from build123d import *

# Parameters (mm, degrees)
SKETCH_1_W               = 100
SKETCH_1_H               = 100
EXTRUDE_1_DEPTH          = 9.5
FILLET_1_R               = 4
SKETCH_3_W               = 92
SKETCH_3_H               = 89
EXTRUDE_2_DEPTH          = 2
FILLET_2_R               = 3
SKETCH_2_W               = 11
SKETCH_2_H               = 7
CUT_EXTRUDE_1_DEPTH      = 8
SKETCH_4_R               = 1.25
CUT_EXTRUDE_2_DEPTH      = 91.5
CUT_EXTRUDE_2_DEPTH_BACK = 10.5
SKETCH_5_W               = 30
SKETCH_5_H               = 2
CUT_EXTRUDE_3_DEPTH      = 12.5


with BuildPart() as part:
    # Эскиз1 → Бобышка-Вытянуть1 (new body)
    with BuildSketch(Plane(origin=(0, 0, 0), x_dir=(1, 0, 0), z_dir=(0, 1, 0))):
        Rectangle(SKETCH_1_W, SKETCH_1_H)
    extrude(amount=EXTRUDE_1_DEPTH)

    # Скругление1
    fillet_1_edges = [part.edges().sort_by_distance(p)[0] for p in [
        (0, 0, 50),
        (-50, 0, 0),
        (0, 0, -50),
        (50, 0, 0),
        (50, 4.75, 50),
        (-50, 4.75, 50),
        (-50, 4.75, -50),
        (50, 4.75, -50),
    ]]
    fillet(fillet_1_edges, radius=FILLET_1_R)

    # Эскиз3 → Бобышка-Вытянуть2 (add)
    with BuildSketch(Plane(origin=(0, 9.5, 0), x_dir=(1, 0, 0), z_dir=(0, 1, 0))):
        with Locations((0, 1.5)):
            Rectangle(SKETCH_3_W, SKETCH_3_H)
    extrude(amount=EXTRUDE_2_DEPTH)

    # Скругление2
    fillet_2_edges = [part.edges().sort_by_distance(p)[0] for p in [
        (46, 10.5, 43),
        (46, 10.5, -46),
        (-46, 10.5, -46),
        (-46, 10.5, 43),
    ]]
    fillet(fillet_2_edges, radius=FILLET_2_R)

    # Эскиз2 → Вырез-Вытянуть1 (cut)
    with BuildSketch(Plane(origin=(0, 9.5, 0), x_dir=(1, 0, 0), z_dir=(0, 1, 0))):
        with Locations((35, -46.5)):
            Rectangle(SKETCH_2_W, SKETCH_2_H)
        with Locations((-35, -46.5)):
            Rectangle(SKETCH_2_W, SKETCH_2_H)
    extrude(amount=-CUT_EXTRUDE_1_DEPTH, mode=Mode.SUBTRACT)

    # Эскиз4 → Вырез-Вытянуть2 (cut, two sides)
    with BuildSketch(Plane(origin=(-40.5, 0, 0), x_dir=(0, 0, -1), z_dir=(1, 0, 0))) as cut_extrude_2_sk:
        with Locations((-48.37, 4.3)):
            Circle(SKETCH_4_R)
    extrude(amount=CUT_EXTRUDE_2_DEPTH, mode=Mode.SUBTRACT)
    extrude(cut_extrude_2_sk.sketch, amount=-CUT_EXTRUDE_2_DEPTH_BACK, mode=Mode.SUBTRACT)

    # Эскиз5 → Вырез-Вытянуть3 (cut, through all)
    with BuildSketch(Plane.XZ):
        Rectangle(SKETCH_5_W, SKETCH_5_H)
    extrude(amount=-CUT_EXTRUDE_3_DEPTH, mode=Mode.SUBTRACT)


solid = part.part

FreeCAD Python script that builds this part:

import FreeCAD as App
import Part
import Sketcher
Q = App.Units.Quantity


def edges_at(feature, points):
    """Names of the edges that pass closest to the given points."""
    edges = feature.Shape.Edges
    near = lambda p: min(range(len(edges)), key=lambda i: edges[i].distToShape(Part.Vertex(*p))[0])
    return sorted({f"Edge{near(p) + 1}" for p in points})

doc = App.newDocument("Part")
params = doc.addObject("Spreadsheet::Sheet", "Params")
for row, (alias, value) in enumerate([
    ("sketch1_width", "100 mm"),
    ("pad1_length", "9.5 mm"),
    ("fillet_radius", "4 mm"),
    ("sketch2_width", "92 mm"),
    ("sketch2_height", "89 mm"),
    ("pad2_length", "2 mm"),
    ("fillet2_radius", "3 mm"),
    ("sketch3_width", "11 mm"),
    ("sketch3_height", "7 mm"),
    ("pocket1_length", "8 mm"),
    ("sketch4_diameter", "2.5 mm"),
    ("sketch5_width", "30 mm"),
    ("sketch5_height", "2 mm"),
], start=1):
    params.set(f"A{row}", alias)
    params.set(f"B{row}", "=" + value)
    params.setAlias(f"B{row}", alias)

body = doc.addObject("PartDesign::Body", "Body")

# Sketch on XZ plane
sketch1 = body.newObject("Sketcher::SketchObject", "Sketch")
sketch1.AttachmentSupport = (doc.getObject("XZ_Plane"), [""])
sketch1.MapMode = "FlatFace"
sketch1.addGeometry([
    Part.LineSegment(App.Vector(-50, -50, 0), App.Vector(-50, 50, 0)),
    Part.LineSegment(App.Vector(-50, 50, 0), App.Vector(50, 50, 0)),
    Part.LineSegment(App.Vector(50, 50, 0), App.Vector(50, -50, 0)),
    Part.LineSegment(App.Vector(50, -50, 0), App.Vector(-50, -50, 0)),
], False)
sketch1.addConstraint([
    Sketcher.Constraint("Coincident", 0, 2, 1, 1),
    Sketcher.Constraint("Coincident", 1, 2, 2, 1),
    Sketcher.Constraint("Coincident", 2, 2, 3, 1),
    Sketcher.Constraint("Coincident", 3, 2, 0, 1),
    Sketcher.Constraint("Vertical", 0),
    Sketcher.Constraint("Horizontal", 1),
    Sketcher.Constraint("Vertical", 2),
    Sketcher.Constraint("Horizontal", 3),
    Sketcher.Constraint("Symmetric", 0, 2, 2, 2, -1, 1),
    Sketcher.Constraint("Equal", 3, 0),
    Sketcher.Constraint("DistanceX", 1, 1, 1, 2, Q("100 mm")),
])
sketch1.setExpression("Constraints[10]", "Params.sketch1_width")
pad1 = body.newObject("PartDesign::Pad", "Pad")
pad1.Profile = sketch1
pad1.setExpression("Length", "Params.pad1_length")
pad1.Reversed = True
doc.recompute()

fillet = body.newObject("PartDesign::Fillet", "Fillet")
fillet.Base = (pad1, edges_at(pad1, [
    (0, 0, 50),
    (-50, 0, 0),
    (0, 0, -50),
    (50, 0, 0),
    (50, 4.75, 50),
    (-50, 4.75, 50),
    (-50, 4.75, -50),
    (50, 4.75, -50),
]))
fillet.setExpression("Radius", "Params.fillet_radius")

# Sketch on XZ plane
sketch2 = body.newObject("Sketcher::SketchObject", "Sketch001")
sketch2.AttachmentSupport = (doc.getObject("XZ_Plane"), [""])
sketch2.MapMode = "FlatFace"
sketch2.AttachmentOffset = App.Placement(App.Vector(0, 0, -9.5), App.Rotation())
sketch2.addGeometry([
    Part.LineSegment(App.Vector(-46, -46, 0), App.Vector(-46, 43, 0)),
    Part.LineSegment(App.Vector(-46, 43, 0), App.Vector(46, 43, 0)),
    Part.LineSegment(App.Vector(46, 43, 0), App.Vector(46, -46, 0)),
    Part.LineSegment(App.Vector(46, -46, 0), App.Vector(-46, -46, 0)),
], False)
sketch2.addConstraint([
    Sketcher.Constraint("Coincident", 0, 2, 1, 1),
    Sketcher.Constraint("Coincident", 1, 2, 2, 1),
    Sketcher.Constraint("Coincident", 2, 2, 3, 1),
    Sketcher.Constraint("Coincident", 3, 2, 0, 1),
    Sketcher.Constraint("Vertical", 0),
    Sketcher.Constraint("Horizontal", 1),
    Sketcher.Constraint("Vertical", 2),
    Sketcher.Constraint("Horizontal", 3),
    Sketcher.Constraint("DistanceX", 1, 1, 1, 2, Q("92 mm")),
    Sketcher.Constraint("DistanceY", 0, 1, 0, 2, Q("89 mm")),
    Sketcher.Constraint("DistanceX", 0, 2, -1, 1, Q("46 mm")),
    Sketcher.Constraint("DistanceY", -1, 1, 0, 2, Q("43 mm")),
])
sketch2.setExpression("Constraints[8]", "Params.sketch2_width")
sketch2.setExpression("Constraints[9]", "Params.sketch2_height")
pad2 = body.newObject("PartDesign::Pad", "Pad001")
pad2.Profile = sketch2
pad2.setExpression("Length", "Params.pad2_length")
pad2.Reversed = True
doc.recompute()

fillet2 = body.newObject("PartDesign::Fillet", "Fillet001")
fillet2.Base = (pad2, edges_at(pad2, [
    (46, 10.5, 43),
    (46, 10.5, -46),
    (-46, 10.5, -46),
    (-46, 10.5, 43),
]))
fillet2.setExpression("Radius", "Params.fillet2_radius")

# Sketch on XZ plane
sketch3 = body.newObject("Sketcher::SketchObject", "Sketch002")
sketch3.AttachmentSupport = (doc.getObject("XZ_Plane"), [""])
sketch3.MapMode = "FlatFace"
sketch3.AttachmentOffset = App.Placement(App.Vector(0, 0, -9.5), App.Rotation())
sketch3.addGeometry([
    Part.LineSegment(App.Vector(29.5, 43, 0), App.Vector(29.5, 50, 0)),  # 0
    Part.LineSegment(App.Vector(29.5, 50, 0), App.Vector(40.5, 50, 0)),  # 1
    Part.LineSegment(App.Vector(40.5, 50, 0), App.Vector(40.5, 43, 0)),  # 2
    Part.LineSegment(App.Vector(40.5, 43, 0), App.Vector(29.5, 43, 0)),  # 3
    Part.LineSegment(App.Vector(-40.5, 43, 0), App.Vector(-40.5, 50, 0)),  # 4
    Part.LineSegment(App.Vector(-40.5, 50, 0), App.Vector(-29.5, 50, 0)),  # 5
    Part.LineSegment(App.Vector(-29.5, 50, 0), App.Vector(-29.5, 43, 0)),  # 6
    Part.LineSegment(App.Vector(-29.5, 43, 0), App.Vector(-40.5, 43, 0)),  # 7
], False)
sketch3.addConstraint([
    Sketcher.Constraint("Coincident", 0, 2, 1, 1),
    Sketcher.Constraint("Coincident", 1, 2, 2, 1),
    Sketcher.Constraint("Coincident", 2, 2, 3, 1),
    Sketcher.Constraint("Coincident", 3, 2, 0, 1),
    Sketcher.Constraint("Coincident", 4, 2, 5, 1),
    Sketcher.Constraint("Coincident", 5, 2, 6, 1),
    Sketcher.Constraint("Coincident", 6, 2, 7, 1),
    Sketcher.Constraint("Coincident", 7, 2, 4, 1),
    Sketcher.Constraint("Vertical", 0),
    Sketcher.Constraint("Horizontal", 1),
    Sketcher.Constraint("Vertical", 2),
    Sketcher.Constraint("Horizontal", 3),
    Sketcher.Constraint("Vertical", 4),
    Sketcher.Constraint("Horizontal", 5),
    Sketcher.Constraint("Vertical", 6),
    Sketcher.Constraint("Horizontal", 7),
    Sketcher.Constraint("Symmetric", 1, 2, 4, 2, -2),
    Sketcher.Constraint("Symmetric", 3, 2, 6, 2, -2),
    Sketcher.Constraint("DistanceX", 1, 1, 1, 2, Q("11 mm")),
    Sketcher.Constraint("DistanceY", 0, 1, 0, 2, Q("7 mm")),
    Sketcher.Constraint("DistanceY", -1, 1, 0, 2, Q("50 mm")),
    Sketcher.Constraint("DistanceX", 4, 2, 0, 2, Q("70 mm")),
])
sketch3.setExpression("Constraints[18]", "Params.sketch3_width")
sketch3.setExpression("Constraints[19]", "Params.sketch3_height")
pocket1 = body.newObject("PartDesign::Pocket", "Pocket")
pocket1.Profile = sketch3
pocket1.setExpression("Length", "Params.pocket1_length")
pocket1.Reversed = True

# Sketch on YZ plane
sketch4 = body.newObject("Sketcher::SketchObject", "Sketch003")
sketch4.AttachmentSupport = (doc.getObject("YZ_Plane"), [""])
sketch4.MapMode = "FlatFace"
sketch4.AttachmentOffset = App.Placement(App.Vector(0, 0, -40.5), App.Rotation())
sketch4.addGeometry(Part.Circle(App.Vector(4.3, 48.37, 0), App.Vector(0, 0, 1), 1.25), False)
sketch4.addConstraint([
    Sketcher.Constraint("Diameter", 0, Q("2.5 mm")),
    Sketcher.Constraint("DistanceX", -1, 1, 0, 3, Q("4.3 mm")),
    Sketcher.Constraint("DistanceY", -1, 1, 0, 3, Q("48.37 mm")),
])
sketch4.setExpression("Constraints[0]", "Params.sketch4_diameter")
pocket2 = body.newObject("PartDesign::Pocket", "Pocket001")
pocket2.Profile = sketch4
pocket2.Type = "ThroughAll"
pocket2.Midplane = True

# Sketch on XZ plane
sketch5 = body.newObject("Sketcher::SketchObject", "Sketch004")
sketch5.AttachmentSupport = (doc.getObject("XZ_Plane"), [""])
sketch5.MapMode = "FlatFace"
sketch5.addGeometry([
    Part.LineSegment(App.Vector(-15, 1, 0), App.Vector(-15, -1, 0)),
    Part.LineSegment(App.Vector(-15, -1, 0), App.Vector(15, -1, 0)),
    Part.LineSegment(App.Vector(15, -1, 0), App.Vector(15, 1, 0)),
    Part.LineSegment(App.Vector(15, 1, 0), App.Vector(-15, 1, 0)),
], False)
sketch5.addConstraint([
    Sketcher.Constraint("Coincident", 0, 2, 1, 1),
    Sketcher.Constraint("Coincident", 1, 2, 2, 1),
    Sketcher.Constraint("Coincident", 2, 2, 3, 1),
    Sketcher.Constraint("Coincident", 3, 2, 0, 1),
    Sketcher.Constraint("Vertical", 0),
    Sketcher.Constraint("Horizontal", 1),
    Sketcher.Constraint("Vertical", 2),
    Sketcher.Constraint("Horizontal", 3),
    Sketcher.Constraint("Symmetric", 0, 2, 2, 2, -1, 1),
    Sketcher.Constraint("DistanceX", 1, 1, 1, 2, Q("30 mm")),
    Sketcher.Constraint("DistanceY", 0, 2, 0, 1, Q("2 mm")),
])
sketch5.setExpression("Constraints[9]", "Params.sketch5_width")
sketch5.setExpression("Constraints[10]", "Params.sketch5_height")
pocket3 = body.newObject("PartDesign::Pocket", "Pocket002")
pocket3.Profile = sketch5
pocket3.Type = "ThroughAll"

doc.recompute()
